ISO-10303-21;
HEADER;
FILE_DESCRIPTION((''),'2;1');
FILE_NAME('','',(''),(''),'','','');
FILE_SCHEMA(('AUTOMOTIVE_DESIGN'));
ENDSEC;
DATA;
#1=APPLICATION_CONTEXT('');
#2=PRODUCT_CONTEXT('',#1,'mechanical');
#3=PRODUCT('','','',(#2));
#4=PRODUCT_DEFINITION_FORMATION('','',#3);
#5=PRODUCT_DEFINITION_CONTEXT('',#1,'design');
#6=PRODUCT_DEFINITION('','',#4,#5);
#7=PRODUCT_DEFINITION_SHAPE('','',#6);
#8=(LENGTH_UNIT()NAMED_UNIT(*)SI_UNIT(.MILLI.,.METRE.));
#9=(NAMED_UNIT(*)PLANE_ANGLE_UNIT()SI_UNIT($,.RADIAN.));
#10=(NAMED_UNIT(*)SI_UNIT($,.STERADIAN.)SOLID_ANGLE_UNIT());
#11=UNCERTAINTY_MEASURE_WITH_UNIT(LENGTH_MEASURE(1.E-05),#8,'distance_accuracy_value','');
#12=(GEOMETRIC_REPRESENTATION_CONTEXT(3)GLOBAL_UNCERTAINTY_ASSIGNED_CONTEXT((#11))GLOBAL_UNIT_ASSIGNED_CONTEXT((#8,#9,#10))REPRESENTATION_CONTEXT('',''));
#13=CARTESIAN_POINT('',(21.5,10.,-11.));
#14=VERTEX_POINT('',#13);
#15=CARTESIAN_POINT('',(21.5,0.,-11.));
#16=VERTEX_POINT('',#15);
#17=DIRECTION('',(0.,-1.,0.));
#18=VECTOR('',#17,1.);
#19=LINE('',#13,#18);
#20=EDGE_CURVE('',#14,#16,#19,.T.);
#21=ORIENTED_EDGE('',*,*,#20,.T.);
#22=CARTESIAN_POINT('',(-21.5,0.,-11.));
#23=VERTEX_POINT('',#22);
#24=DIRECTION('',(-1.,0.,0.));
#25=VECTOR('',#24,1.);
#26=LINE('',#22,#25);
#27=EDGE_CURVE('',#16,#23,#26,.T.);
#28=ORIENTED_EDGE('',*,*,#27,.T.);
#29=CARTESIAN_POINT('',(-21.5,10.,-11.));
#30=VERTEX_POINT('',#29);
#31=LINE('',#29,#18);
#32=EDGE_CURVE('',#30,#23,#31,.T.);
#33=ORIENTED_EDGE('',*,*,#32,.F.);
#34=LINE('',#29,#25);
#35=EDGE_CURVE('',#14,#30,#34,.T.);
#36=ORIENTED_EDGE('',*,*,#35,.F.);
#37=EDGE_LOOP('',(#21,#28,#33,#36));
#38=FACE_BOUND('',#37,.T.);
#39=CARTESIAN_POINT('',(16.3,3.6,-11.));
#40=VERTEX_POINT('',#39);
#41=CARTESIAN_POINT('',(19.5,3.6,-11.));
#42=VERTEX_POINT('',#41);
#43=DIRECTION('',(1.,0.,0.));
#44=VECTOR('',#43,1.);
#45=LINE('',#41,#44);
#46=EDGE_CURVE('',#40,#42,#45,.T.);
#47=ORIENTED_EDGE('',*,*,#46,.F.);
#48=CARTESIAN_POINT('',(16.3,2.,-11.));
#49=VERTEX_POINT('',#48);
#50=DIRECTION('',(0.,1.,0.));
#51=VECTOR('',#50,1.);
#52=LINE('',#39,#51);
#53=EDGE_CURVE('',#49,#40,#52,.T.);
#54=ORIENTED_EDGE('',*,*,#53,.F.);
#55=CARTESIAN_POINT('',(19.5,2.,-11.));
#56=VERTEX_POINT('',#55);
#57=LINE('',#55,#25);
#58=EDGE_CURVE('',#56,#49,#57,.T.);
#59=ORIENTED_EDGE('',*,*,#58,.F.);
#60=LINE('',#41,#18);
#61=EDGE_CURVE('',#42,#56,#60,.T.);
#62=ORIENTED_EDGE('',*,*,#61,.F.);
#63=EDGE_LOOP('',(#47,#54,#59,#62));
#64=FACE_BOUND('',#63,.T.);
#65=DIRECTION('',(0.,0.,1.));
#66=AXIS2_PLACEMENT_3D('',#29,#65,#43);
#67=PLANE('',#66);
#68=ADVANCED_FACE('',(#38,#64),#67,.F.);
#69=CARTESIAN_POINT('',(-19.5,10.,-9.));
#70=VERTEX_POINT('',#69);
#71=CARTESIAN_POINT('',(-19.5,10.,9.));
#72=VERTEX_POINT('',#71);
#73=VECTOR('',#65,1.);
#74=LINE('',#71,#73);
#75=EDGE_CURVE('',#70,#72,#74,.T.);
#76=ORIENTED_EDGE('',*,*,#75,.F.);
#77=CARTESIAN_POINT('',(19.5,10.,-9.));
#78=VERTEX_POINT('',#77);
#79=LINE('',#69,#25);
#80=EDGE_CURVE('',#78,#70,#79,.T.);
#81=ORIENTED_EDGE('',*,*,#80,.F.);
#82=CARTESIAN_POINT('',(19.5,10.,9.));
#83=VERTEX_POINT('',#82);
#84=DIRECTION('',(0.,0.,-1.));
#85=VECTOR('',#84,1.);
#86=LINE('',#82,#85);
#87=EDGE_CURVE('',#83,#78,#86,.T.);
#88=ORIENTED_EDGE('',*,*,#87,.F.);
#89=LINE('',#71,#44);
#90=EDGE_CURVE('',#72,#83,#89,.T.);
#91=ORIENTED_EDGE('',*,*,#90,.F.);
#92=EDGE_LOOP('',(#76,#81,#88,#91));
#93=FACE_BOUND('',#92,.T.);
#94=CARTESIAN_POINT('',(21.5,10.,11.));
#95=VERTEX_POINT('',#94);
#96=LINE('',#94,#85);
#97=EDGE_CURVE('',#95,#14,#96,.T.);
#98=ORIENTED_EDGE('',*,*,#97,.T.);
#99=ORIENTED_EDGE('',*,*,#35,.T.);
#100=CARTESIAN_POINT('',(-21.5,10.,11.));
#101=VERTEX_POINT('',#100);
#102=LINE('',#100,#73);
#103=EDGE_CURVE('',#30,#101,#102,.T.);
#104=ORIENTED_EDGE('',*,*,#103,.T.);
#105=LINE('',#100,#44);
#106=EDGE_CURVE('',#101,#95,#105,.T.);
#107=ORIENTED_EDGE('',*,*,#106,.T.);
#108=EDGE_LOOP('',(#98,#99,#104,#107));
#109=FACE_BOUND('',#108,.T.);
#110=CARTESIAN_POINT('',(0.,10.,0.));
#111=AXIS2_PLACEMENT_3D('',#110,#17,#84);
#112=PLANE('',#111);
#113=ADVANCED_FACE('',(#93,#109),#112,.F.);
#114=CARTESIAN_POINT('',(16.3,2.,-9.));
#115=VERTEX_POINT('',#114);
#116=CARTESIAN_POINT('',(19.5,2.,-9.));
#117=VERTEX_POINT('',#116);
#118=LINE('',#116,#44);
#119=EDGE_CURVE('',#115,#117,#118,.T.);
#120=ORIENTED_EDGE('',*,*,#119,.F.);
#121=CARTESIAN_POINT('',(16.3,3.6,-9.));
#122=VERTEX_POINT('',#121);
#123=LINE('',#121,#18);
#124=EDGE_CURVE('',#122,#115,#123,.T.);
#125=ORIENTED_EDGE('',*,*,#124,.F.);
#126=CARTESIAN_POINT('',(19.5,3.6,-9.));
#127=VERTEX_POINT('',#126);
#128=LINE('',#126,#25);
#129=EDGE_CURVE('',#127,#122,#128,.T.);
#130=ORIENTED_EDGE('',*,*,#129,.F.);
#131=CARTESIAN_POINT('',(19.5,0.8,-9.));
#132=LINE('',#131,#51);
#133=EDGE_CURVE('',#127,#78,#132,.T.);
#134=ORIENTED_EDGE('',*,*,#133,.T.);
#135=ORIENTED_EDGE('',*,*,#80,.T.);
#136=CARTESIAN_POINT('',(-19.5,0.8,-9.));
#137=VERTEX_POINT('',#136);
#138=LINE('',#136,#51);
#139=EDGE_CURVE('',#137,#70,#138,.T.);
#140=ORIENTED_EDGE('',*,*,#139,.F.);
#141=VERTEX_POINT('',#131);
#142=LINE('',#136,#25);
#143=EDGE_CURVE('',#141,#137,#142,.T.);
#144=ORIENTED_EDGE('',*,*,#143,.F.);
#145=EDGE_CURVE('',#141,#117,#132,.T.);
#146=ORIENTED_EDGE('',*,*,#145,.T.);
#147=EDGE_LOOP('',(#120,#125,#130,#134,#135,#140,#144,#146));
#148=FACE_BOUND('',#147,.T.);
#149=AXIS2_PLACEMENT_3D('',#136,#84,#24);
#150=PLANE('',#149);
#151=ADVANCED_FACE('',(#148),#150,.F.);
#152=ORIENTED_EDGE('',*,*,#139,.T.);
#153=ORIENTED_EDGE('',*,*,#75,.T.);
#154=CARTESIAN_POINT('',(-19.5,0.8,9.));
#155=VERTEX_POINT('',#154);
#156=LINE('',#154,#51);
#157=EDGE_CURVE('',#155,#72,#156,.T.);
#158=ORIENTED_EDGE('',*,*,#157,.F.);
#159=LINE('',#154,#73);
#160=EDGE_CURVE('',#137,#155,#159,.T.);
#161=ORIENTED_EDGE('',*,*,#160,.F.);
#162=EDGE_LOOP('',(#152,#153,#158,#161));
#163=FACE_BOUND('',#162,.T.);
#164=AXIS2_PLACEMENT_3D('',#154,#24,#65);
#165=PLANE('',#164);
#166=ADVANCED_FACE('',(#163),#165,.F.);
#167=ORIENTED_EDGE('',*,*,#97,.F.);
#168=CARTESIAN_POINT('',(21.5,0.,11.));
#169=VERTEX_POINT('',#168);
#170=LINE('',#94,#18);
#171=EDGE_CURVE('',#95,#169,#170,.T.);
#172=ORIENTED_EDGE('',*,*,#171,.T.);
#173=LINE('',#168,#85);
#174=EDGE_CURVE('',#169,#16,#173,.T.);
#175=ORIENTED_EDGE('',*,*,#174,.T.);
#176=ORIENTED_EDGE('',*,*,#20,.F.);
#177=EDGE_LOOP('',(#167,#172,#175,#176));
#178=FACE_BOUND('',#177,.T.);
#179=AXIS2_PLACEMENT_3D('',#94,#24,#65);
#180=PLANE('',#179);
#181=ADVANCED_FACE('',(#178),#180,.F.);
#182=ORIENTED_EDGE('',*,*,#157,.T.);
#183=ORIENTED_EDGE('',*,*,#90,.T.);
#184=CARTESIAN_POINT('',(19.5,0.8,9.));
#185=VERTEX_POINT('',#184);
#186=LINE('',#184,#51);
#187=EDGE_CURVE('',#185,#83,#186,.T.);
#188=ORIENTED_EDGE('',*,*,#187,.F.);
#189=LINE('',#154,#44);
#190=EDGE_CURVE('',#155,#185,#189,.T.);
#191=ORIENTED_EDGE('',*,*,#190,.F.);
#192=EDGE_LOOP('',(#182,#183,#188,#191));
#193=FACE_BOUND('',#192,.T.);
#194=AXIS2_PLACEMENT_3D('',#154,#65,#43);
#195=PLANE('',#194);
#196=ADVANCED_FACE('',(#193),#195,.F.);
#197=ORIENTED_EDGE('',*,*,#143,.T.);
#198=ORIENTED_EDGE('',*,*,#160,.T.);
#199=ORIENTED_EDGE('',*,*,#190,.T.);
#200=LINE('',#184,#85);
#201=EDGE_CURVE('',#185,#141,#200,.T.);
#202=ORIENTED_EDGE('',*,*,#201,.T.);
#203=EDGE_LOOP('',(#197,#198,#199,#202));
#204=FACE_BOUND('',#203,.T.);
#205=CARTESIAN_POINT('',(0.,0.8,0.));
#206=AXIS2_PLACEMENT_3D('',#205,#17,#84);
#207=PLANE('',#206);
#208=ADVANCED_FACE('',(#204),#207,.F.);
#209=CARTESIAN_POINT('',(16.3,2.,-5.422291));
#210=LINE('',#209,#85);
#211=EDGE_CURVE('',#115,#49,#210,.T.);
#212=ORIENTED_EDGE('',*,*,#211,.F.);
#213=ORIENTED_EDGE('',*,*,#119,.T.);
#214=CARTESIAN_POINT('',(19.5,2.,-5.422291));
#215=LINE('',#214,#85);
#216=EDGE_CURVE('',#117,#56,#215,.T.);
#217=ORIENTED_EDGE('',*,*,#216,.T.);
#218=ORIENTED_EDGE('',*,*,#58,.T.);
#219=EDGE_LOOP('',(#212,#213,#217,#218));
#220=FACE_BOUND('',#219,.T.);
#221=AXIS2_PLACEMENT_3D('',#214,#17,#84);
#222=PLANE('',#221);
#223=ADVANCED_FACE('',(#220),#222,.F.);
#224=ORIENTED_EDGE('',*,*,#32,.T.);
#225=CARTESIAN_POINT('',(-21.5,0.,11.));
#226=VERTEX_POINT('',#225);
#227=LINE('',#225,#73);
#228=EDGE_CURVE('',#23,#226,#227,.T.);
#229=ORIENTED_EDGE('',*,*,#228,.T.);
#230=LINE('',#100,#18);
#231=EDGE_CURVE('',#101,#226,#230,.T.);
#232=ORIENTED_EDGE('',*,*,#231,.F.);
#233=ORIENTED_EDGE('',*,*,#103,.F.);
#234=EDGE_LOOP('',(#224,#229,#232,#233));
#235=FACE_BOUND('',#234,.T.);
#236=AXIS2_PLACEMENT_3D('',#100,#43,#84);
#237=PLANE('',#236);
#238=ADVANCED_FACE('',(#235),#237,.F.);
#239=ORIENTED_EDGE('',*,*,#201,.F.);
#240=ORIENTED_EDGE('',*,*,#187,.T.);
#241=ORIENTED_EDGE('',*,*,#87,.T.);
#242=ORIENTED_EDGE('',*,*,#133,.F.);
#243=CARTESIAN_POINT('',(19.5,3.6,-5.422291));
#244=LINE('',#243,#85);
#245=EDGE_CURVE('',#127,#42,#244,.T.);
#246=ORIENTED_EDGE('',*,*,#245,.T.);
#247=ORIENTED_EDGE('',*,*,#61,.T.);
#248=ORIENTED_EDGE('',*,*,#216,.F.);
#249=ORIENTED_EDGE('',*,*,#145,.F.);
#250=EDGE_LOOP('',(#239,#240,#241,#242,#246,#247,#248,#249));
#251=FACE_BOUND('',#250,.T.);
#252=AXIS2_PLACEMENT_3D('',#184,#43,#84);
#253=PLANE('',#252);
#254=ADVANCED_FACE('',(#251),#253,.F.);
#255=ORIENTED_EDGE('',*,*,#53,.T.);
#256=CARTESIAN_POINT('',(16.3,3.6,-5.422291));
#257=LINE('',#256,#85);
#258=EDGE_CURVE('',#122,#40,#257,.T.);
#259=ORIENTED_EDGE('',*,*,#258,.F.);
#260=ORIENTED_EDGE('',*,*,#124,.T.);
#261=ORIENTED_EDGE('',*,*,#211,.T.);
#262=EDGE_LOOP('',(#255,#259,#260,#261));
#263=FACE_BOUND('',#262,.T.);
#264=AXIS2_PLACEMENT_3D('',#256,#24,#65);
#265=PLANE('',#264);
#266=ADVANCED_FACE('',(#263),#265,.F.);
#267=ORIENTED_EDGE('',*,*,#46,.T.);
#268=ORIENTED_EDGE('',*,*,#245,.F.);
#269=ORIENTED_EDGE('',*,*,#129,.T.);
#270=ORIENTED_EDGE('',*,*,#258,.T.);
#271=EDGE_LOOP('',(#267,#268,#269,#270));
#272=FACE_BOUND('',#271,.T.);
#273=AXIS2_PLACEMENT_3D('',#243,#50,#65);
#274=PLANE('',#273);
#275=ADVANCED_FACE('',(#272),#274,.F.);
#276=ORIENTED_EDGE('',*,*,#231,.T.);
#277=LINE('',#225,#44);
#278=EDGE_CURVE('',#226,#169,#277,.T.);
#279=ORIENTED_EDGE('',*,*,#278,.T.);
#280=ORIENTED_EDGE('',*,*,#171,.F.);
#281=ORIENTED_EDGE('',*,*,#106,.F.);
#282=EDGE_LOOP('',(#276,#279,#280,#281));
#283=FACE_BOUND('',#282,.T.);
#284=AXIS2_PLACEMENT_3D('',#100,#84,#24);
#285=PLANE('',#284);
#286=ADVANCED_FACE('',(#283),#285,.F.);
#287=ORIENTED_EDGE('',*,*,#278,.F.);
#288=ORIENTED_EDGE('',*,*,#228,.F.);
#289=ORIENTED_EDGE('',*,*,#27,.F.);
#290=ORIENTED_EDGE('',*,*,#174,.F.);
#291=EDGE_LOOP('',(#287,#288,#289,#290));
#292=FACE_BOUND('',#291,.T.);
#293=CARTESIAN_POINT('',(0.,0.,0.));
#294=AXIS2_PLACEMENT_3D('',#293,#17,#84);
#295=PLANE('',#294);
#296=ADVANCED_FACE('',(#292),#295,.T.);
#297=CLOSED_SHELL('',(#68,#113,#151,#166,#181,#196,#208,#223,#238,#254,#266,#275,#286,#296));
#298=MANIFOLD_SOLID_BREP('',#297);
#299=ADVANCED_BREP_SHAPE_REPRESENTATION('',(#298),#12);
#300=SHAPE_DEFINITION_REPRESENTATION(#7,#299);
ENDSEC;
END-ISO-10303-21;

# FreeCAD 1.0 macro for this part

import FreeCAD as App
import Part
import Sketcher
Q = App.Units.Quantity


def add_polygon(sketch, points):
    """Adds a closed chain of lines whose ends are joined by coincident constraints."""
    first, n = sketch.GeometryCount, len(points)
    for a, b in zip(points, points[1:] + points[:1]):
        sketch.addGeometry(Part.LineSegment(App.Vector(*a, 0), App.Vector(*b, 0)), False)
    for i in range(n):
        sketch.addConstraint(Sketcher.Constraint("Coincident", first + i, 2, first + (i + 1) % n, 1))

doc = App.newDocument("Part")
body = doc.addObject("PartDesign::Body", "Body")

# Sketch on XZ plane
sketch1 = body.newObject("Sketcher::SketchObject", "Sketch")
sketch1.AttachmentSupport = (doc.getObject("XZ_Plane"), [""])
sketch1.MapMode = "FlatFace"
add_polygon(sketch1, [(-22, -11), (-22, 11), (22, 11), (22, -11)])  # lines 0-3
sketch1.addConstraint([
    Sketcher.Constraint("Vertical", 0),
    Sketcher.Constraint("Horizontal", 1),
    Sketcher.Constraint("Vertical", 2),
    Sketcher.Constraint("Horizontal", 3),
    Sketcher.Constraint("Symmetric", 0, 2, 2, 2, -1, 1),
    Sketcher.Constraint("DistanceX", 1, 1, 1, 2, Q("43 mm")),
    Sketcher.Constraint("DistanceY", 0, 1, 0, 2, Q("22 mm")),
])
pad1 = body.newObject("PartDesign::Pad", "Pad")
pad1.Profile = sketch1
pad1.Length = 10
pad1.Reversed = True

# Sketch on XZ plane
sketch2 = body.newObject("Sketcher::SketchObject", "Sketch001")
sketch2.AttachmentSupport = (doc.getObject("XZ_Plane"), [""])
sketch2.MapMode = "FlatFace"
sketch2.AttachmentOffset = App.Placement(App.Vector(0, 0, -10), App.Rotation())
add_polygon(sketch2, [(-20, -9), (-20, 9), (20, 9), (20, -9)])  # lines 0-3
sketch2.addConstraint([
    Sketcher.Constraint("Vertical", 0),
    Sketcher.Constraint("Horizontal", 1),
    Sketcher.Constraint("Vertical", 2),
    Sketcher.Constraint("Horizontal", 3),
    Sketcher.Constraint("Symmetric", 0, 2, 2, 2, -1, 1),
    Sketcher.Constraint("DistanceX", 1, 1, 1, 2, Q("39 mm")),
    Sketcher.Constraint("DistanceY", 0, 1, 0, 2, Q("18 mm")),
])
pocket1 = body.newObject("PartDesign::Pocket", "Pocket")
pocket1.Profile = sketch2
pocket1.Length = 9.2
pocket1.Reversed = True

# Sketch on XY plane
sketch3 = body.newObject("Sketcher::SketchObject", "Sketch002")
sketch3.AttachmentSupport = (doc.getObject("XY_Plane"), [""])
sketch3.MapMode = "FlatFace"
sketch3.AttachmentOffset = App.Placement(App.Vector(0, 0, -11), App.Rotation())
add_polygon(sketch3, [(19.5, 3.6), (19.5, 2), (16.3, 2), (16.3, 3.6)])  # lines 0-3
sketch3.addConstraint([
    Sketcher.Constraint("Vertical", 0),
    Sketcher.Constraint("Horizontal", 1),
    Sketcher.Constraint("Vertical", 2),
    Sketcher.Constraint("Horizontal", 3),
    Sketcher.Constraint("DistanceX", 1, 2, 1, 1, Q("3.2 mm")),
    Sketcher.Constraint("DistanceY", 0, 2, 0, 1, Q("1.6 mm")),
    Sketcher.Constraint("DistanceY", -1, 1, 0, 2, Q("2 mm")),
    Sketcher.Constraint("DistanceX", -1, 1, 0, 2, Q("19.5 mm")),
])
pocket2 = body.newObject("PartDesign::Pocket", "Pocket001")
pocket2.Profile = sketch3
pocket2.Length = 2
pocket2.Reversed = True

doc.recompute()
